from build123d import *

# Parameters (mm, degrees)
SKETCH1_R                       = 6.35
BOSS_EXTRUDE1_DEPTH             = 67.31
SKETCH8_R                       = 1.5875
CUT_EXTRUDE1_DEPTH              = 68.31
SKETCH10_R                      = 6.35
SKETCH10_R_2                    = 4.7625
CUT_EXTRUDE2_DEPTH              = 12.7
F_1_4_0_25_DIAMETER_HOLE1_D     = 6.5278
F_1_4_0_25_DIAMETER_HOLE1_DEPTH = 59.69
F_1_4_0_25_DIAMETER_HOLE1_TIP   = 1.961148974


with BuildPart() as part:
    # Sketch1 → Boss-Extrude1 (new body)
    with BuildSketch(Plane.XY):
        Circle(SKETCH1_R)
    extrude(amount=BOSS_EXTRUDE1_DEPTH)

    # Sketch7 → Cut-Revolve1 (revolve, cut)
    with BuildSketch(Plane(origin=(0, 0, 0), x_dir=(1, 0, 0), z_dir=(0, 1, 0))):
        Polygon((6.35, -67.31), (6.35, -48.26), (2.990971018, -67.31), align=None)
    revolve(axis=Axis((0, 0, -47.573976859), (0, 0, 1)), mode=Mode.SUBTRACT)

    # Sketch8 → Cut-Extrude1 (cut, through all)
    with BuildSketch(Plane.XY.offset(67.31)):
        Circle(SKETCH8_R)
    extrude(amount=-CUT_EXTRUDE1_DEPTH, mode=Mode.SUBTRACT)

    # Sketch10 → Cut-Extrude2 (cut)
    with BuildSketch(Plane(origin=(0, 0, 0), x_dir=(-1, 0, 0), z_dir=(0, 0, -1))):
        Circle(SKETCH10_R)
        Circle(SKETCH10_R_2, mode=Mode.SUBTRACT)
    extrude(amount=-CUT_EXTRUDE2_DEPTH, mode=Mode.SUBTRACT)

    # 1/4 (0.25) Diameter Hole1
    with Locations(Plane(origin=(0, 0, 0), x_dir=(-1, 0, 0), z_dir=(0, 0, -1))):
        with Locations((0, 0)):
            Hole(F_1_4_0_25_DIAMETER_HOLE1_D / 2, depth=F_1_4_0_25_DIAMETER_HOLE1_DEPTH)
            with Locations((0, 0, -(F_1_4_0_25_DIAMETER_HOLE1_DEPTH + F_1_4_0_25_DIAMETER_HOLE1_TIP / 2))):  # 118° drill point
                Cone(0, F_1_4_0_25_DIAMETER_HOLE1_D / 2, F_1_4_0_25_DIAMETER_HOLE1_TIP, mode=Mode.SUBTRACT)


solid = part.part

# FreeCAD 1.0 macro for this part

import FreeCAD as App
import Part
import Sketcher
Q = App.Units.Quantity


def add_polygon(sketch, points):
    """Adds a closed chain of lines whose ends are joined by coincident constraints."""
    first, n = sketch.GeometryCount, len(points)
    for a, b in zip(points, points[1:] + points[:1]):
        sketch.addGeometry(Part.LineSegment(App.Vector(*a, 0), App.Vector(*b, 0)), False)
    for i in range(n):
        sketch.addConstraint(Sketcher.Constraint("Coincident", first + i, 2, first + (i + 1) % n, 1))

doc = App.newDocument("Part")
body = doc.addObject("PartDesign::Body", "Body")

# Sketch on XY plane
sketch1 = body.newObject("Sketcher::SketchObject", "Sketch")
sketch1.AttachmentSupport = (doc.getObject("XY_Plane"), [""])
sketch1.MapMode = "FlatFace"
sketch1.addGeometry(Part.Circle(App.Vector(0, 0, 0), App.Vector(0, 0, 1), 6.35), False)
sketch1.addConstraint([
    Sketcher.Constraint("Coincident", 0, 3, -1, 1),
    Sketcher.Constraint("Diameter", 0, Q("0.5 in")),
])
pad1 = body.newObject("PartDesign::Pad", "Pad")
pad1.Profile = sketch1
pad1.Length = Q("2.65 in")

# Sketch on XZ plane
sketch2 = body.newObject("Sketcher::SketchObject", "Sketch001")
sketch2.AttachmentSupport = (doc.getObject("XZ_Plane"), [""])
sketch2.MapMode = "FlatFace"
add_polygon(sketch2, [(6.35, 67.31), (6.35, 48.26), (2.990971, 67.31)])  # lines 0-2
sketch2.addConstraint([
    Sketcher.Constraint("Vertical", 0),
    Sketcher.Constraint("Horizontal", 2),
    Sketcher.Constraint("Angle", 1, Q("100 deg")),
    Sketcher.Constraint("DistanceY", 0, 2, 0, 1, Q("0.75 in")),
    Sketcher.Constraint("DistanceY", -1, 1, 0, 2, Q("1.9 in")),
    Sketcher.Constraint("DistanceX", -1, 1, 0, 2, Q("0.25 in")),
])
groove = body.newObject("PartDesign::Groove", "Groove")
groove.Profile = sketch2
groove.ReferenceAxis = (sketch2, ["V_Axis"])
groove.Angle = 360

# Sketch on XY plane
sketch3 = body.newObject("Sketcher::SketchObject", "Sketch002")
sketch3.AttachmentSupport = (doc.getObject("XY_Plane"), [""])
sketch3.MapMode = "FlatFace"
sketch3.AttachmentOffset = App.Placement(App.Vector(0, 0, 2.65 * 25.4), App.Rotation())
sketch3.addGeometry(Part.Circle(App.Vector(0, 0, 0), App.Vector(0, 0, 1), 1.5875), False)
sketch3.addConstraint([
    Sketcher.Constraint("Coincident", 0, 3, -1, 1),
    Sketcher.Constraint("Diameter", 0, Q("0.125 in")),
])
pocket1 = body.newObject("PartDesign::Pocket", "Pocket")
pocket1.Profile = sketch3
pocket1.Type = "ThroughAll"

# Sketch on XY plane
sketch4 = body.newObject("Sketcher::SketchObject", "Sketch003")
sketch4.AttachmentSupport = (doc.getObject("XY_Plane"), [""])
sketch4.MapMode = "FlatFace"
sketch4.addGeometry([
    Part.Circle(App.Vector(0, 0, 0), App.Vector(0, 0, 1), 6.35),
    Part.Circle(App.Vector(0, 0, 0), App.Vector(0, 0, 1), 4.7625),
], False)
sketch4.addConstraint([
    Sketcher.Constraint("Coincident", 0, 3, -1, 1),
    Sketcher.Constraint("Coincident", 1, 3, -1, 1),
    Sketcher.Constraint("Diameter", 0, Q("0.5 in")),
    Sketcher.Constraint("Diameter", 1, Q("0.375 in")),
])
pocket2 = body.newObject("PartDesign::Pocket", "Pocket001")
pocket2.Profile = sketch4
pocket2.Length = Q("0.5 in")
pocket2.Reversed = True

# Sketch on XY plane
sketch5 = body.newObject("Sketcher::SketchObject", "Sketch004")
sketch5.AttachmentSupport = (doc.getObject("XY_Plane"), [""])
sketch5.MapMode = "FlatFace"
sketch5.addGeometry(Part.Circle(App.Vector(0, 0, 0), App.Vector(0, 0, 1), 3.2639), False)
sketch5.addConstraint([
    Sketcher.Constraint("Coincident", 0, 3, -1, 1),
    Sketcher.Constraint("Diameter", 0, Q("0.257 in")),
])
doc.recompute()
hole = body.newObject("PartDesign::Hole", "Hole")
hole.Profile = sketch5
hole.ThreadType = "None"
hole.Diameter = Q("0.257 in")
hole.DepthType = "Dimension"
hole.Depth = Q("2.35 in")
hole.DrillPoint = "Angled"
hole.DrillPointAngle = 118
hole.Reversed = True

doc.recompute()
